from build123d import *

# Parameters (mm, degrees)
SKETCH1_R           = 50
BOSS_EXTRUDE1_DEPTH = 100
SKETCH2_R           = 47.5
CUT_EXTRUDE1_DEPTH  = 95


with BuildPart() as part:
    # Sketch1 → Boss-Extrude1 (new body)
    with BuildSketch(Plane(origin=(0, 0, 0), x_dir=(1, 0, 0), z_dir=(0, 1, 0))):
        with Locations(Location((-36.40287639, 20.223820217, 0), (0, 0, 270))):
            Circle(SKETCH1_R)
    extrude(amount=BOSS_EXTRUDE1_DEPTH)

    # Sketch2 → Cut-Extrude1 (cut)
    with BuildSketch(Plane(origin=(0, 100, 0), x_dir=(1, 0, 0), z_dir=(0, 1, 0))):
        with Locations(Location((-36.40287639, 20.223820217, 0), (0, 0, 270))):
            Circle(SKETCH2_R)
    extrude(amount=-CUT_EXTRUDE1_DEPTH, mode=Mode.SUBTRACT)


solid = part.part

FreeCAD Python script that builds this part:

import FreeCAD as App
import Part
import Sketcher

V = App.Vector

doc = App.newDocument("Part")
params = doc.addObject("Spreadsheet::Sheet", "Params")
for row, (alias, value) in enumerate([
    ("sketch1_diameter", "100 mm"),
    ("pad1_length", "100 mm"),
    ("sketch2_diameter", "95 mm"),
    ("pocket1_length", "95 mm"),
], start=1):
    params.set(f"A{row}", alias)
    params.set(f"B{row}", "=" + value)
    params.setAlias(f"B{row}", alias)

body = doc.addObject("PartDesign::Body", "Body")

# Sketch on XZ plane
sketch1 = body.newObject("Sketcher::SketchObject", "Sketch")
sketch1.AttachmentSupport = (doc.getObject("XZ_Plane"), [""])
sketch1.MapMode = "FlatFace"
sketch1.addGeometry(Part.Circle(V(-36, -20, 0), V(0, 0, 1), 50), False)
sketch1.addConstraint(Sketcher.Constraint("Diameter", 0, 100.0))
sketch1.addConstraint(Sketcher.Constraint("DistanceY", 0, 3, -1, 1, 20.22382))
sketch1.addConstraint(Sketcher.Constraint("DistanceX", 0, 3, -1, 1, 36.402876))
sketch1.setExpression("Constraints[0]", "Params.sketch1_diameter")
pad1 = body.newObject("PartDesign::Pad", "Pad")
pad1.Profile = sketch1
pad1.setExpression("Length", "Params.pad1_length")
pad1.Reversed = True

# Sketch on XZ plane
sketch2 = body.newObject("Sketcher::SketchObject", "Sketch001")
sketch2.AttachmentSupport = (doc.getObject("XZ_Plane"), [""])
sketch2.MapMode = "FlatFace"
sketch2.AttachmentOffset = App.Placement(V(0, 0, -100), App.Rotation())
sketch2.addGeometry(Part.Circle(V(-36, -20, 0), V(0, 0, 1), 48), False)
sketch2.addConstraint(Sketcher.Constraint("Diameter", 0, 95.0))
sketch2.addConstraint(Sketcher.Constraint("DistanceY", 0, 3, -1, 1, 20.22382))
sketch2.addConstraint(Sketcher.Constraint("DistanceX", 0, 3, -1, 1, 36.402876))
sketch2.setExpression("Constraints[0]", "Params.sketch2_diameter")
pocket1 = body.newObject("PartDesign::Pocket", "Pocket")
pocket1.Profile = sketch2
pocket1.setExpression("Length", "Params.pocket1_length")
pocket1.Reversed = True

doc.recompute()
